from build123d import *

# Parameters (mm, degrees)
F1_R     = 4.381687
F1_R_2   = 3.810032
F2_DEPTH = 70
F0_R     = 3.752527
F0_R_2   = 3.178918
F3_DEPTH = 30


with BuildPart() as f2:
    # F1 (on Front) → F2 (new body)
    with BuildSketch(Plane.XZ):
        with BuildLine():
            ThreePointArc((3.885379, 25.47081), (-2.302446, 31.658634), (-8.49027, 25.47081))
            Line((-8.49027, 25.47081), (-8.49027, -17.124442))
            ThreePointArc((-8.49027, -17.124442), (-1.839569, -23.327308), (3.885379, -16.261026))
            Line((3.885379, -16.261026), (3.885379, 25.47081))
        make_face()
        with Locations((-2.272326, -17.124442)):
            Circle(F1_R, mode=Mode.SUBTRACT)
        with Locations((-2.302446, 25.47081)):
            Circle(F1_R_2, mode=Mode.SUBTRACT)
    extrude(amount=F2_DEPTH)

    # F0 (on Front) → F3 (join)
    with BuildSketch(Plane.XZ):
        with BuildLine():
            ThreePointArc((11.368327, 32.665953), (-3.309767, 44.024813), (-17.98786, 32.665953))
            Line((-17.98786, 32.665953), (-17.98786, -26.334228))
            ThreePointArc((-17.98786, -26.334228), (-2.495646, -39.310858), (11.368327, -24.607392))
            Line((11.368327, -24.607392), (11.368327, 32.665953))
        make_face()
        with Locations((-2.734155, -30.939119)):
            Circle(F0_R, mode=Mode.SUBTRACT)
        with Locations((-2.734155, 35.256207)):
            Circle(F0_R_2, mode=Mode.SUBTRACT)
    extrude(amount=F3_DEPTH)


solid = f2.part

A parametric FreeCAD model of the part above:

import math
import FreeCAD as App
import Part
import Sketcher
Q = App.Units.Quantity

doc = App.newDocument("Part")
body = doc.addObject("PartDesign::Body", "Body")

# Sketch on XZ plane
sketch1 = body.newObject("Sketcher::SketchObject", "Sketch")
sketch1.AttachmentSupport = (doc.getObject("XZ_Plane"), [""])
sketch1.MapMode = "FlatFace"
sketch1.addGeometry([
    Part.ArcOfCircle(Part.Circle(App.Vector(-2.302446, 25.47081, 0), App.Vector(0, 0, 1), 6.187824), math.radians(0.000005), math.radians(179.999995)),  # 0
    Part.LineSegment(App.Vector(-8.49027, 25.47081, 0), App.Vector(-8.49027, -17.124442, 0)),  # 1
    Part.ArcOfCircle(Part.Circle(App.Vector(-2.272326, -17.124442, 0), App.Vector(0, 0, 1), 6.217944), math.radians(179.999998), math.radians(367.981815)),  # 2
    Part.LineSegment(App.Vector(3.885379, -16.261026, 0), App.Vector(3.885379, 25.47081, 0)),  # 3
    Part.Circle(App.Vector(-2.272326, -17.124442, 0), App.Vector(0, 0, 1), 4.381687),  # 4
    Part.Circle(App.Vector(-2.302446, 25.47081, 0), App.Vector(0, 0, 1), 3.810032),  # 5
], False)
sketch1.addConstraint([
    Sketcher.Constraint("Tangent", 0, 2, 1, 1),
    Sketcher.Constraint("Tangent", 1, 2, 2, 1),
    Sketcher.Constraint("Coincident", 2, 2, 3, 1),
    Sketcher.Constraint("Tangent", 3, 2, 0, 1),
    Sketcher.Constraint("Vertical", 1),
    Sketcher.Constraint("Vertical", 3),
    Sketcher.Constraint("Coincident", 4, 3, 2, 3),
    Sketcher.Constraint("Coincident", 5, 3, 0, 3),
    Sketcher.Constraint("Diameter", 4, Q("8.763374 mm")),
    Sketcher.Constraint("Diameter", 5, Q("7.620064 mm")),
    Sketcher.Constraint("Radius", 0, Q("6.187824 mm")),
    Sketcher.Constraint("Radius", 2, Q("6.217944 mm")),
    Sketcher.Constraint("DistanceY", 1, 2, 1, 1, Q("42.595252 mm")),
    Sketcher.Constraint("DistanceY", -1, 1, 0, 3, Q("25.47081 mm")),
    Sketcher.Constraint("DistanceX", 0, 2, -1, 1, Q("8.49027 mm")),
])
pad1 = body.newObject("PartDesign::Pad", "Pad")
pad1.Profile = sketch1
pad1.Length = 70

# Sketch on XZ plane
sketch2 = body.newObject("Sketcher::SketchObject", "Sketch001")
sketch2.AttachmentSupport = (doc.getObject("XZ_Plane"), [""])
sketch2.MapMode = "FlatFace"
sketch2.addGeometry([
    Part.ArcOfCircle(Part.Circle(App.Vector(-3.309766, 28.861754, 0), App.Vector(0, 0, 1), 15.163059), math.radians(14.529947), math.radians(165.470053)),  # 0
    Part.LineSegment(App.Vector(-17.98786, 32.665953, 0), App.Vector(-17.98786, -26.334228, 0)),  # 1
    Part.ArcOfCircle(Part.Circle(App.Vector(-3.360556, -24.607392, 0), App.Vector(0, 0, 1), 14.728883), math.radians(-173.267072), math.radians(-0.000001)),  # 2
    Part.LineSegment(App.Vector(11.368327, -24.607392, 0), App.Vector(11.368327, 32.665953, 0)),  # 3
    Part.Circle(App.Vector(-2.734155, -30.939119, 0), App.Vector(0, 0, 1), 3.752527),  # 4
    Part.Circle(App.Vector(-2.734155, 35.256207, 0), App.Vector(0, 0, 1), 3.178918),  # 5
], False)
sketch2.addConstraint([
    Sketcher.Constraint("Coincident", 0, 2, 1, 1),
    Sketcher.Constraint("Coincident", 1, 2, 2, 1),
    Sketcher.Constraint("Tangent", 2, 2, 3, 1),
    Sketcher.Constraint("Coincident", 3, 2, 0, 1),
    Sketcher.Constraint("Vertical", 1),
    Sketcher.Constraint("Vertical", 3),
    Sketcher.Constraint("Horizontal", 0, 2, 3, 2),
    Sketcher.Constraint("Vertical", 4, 3, 5, 3),
    Sketcher.Constraint("Radius", 0, Q("15.163059 mm")),
    Sketcher.Constraint("Diameter", 4, Q("7.505054 mm")),
    Sketcher.Constraint("Diameter", 5, Q("6.357836 mm")),
    Sketcher.Constraint("Radius", 2, Q("14.728883 mm")),
    Sketcher.Constraint("DistanceY", 1, 2, 1, 1, Q("59.000181 mm")),
    Sketcher.Constraint("DistanceX", 2, 3, 4, 3, Q("0.626401 mm")),
    Sketcher.Constraint("DistanceY", 2, 3, 5, 3, Q("59.863599 mm")),
    Sketcher.Constraint("DistanceY", 0, 3, 0, 2, Q("3.804199 mm")),
    Sketcher.Constraint("DistanceY", 2, 3, -1, 1, Q("24.607392 mm")),
    Sketcher.Constraint("DistanceY", 4, 3, -1, 1, Q("30.939119 mm")),
    Sketcher.Constraint("DistanceX", 0, 2, -1, 1, Q("17.98786 mm")),
])
pad2 = body.newObject("PartDesign::Pad", "Pad001")
pad2.Profile = sketch2
pad2.Length = 30

doc.recompute()
